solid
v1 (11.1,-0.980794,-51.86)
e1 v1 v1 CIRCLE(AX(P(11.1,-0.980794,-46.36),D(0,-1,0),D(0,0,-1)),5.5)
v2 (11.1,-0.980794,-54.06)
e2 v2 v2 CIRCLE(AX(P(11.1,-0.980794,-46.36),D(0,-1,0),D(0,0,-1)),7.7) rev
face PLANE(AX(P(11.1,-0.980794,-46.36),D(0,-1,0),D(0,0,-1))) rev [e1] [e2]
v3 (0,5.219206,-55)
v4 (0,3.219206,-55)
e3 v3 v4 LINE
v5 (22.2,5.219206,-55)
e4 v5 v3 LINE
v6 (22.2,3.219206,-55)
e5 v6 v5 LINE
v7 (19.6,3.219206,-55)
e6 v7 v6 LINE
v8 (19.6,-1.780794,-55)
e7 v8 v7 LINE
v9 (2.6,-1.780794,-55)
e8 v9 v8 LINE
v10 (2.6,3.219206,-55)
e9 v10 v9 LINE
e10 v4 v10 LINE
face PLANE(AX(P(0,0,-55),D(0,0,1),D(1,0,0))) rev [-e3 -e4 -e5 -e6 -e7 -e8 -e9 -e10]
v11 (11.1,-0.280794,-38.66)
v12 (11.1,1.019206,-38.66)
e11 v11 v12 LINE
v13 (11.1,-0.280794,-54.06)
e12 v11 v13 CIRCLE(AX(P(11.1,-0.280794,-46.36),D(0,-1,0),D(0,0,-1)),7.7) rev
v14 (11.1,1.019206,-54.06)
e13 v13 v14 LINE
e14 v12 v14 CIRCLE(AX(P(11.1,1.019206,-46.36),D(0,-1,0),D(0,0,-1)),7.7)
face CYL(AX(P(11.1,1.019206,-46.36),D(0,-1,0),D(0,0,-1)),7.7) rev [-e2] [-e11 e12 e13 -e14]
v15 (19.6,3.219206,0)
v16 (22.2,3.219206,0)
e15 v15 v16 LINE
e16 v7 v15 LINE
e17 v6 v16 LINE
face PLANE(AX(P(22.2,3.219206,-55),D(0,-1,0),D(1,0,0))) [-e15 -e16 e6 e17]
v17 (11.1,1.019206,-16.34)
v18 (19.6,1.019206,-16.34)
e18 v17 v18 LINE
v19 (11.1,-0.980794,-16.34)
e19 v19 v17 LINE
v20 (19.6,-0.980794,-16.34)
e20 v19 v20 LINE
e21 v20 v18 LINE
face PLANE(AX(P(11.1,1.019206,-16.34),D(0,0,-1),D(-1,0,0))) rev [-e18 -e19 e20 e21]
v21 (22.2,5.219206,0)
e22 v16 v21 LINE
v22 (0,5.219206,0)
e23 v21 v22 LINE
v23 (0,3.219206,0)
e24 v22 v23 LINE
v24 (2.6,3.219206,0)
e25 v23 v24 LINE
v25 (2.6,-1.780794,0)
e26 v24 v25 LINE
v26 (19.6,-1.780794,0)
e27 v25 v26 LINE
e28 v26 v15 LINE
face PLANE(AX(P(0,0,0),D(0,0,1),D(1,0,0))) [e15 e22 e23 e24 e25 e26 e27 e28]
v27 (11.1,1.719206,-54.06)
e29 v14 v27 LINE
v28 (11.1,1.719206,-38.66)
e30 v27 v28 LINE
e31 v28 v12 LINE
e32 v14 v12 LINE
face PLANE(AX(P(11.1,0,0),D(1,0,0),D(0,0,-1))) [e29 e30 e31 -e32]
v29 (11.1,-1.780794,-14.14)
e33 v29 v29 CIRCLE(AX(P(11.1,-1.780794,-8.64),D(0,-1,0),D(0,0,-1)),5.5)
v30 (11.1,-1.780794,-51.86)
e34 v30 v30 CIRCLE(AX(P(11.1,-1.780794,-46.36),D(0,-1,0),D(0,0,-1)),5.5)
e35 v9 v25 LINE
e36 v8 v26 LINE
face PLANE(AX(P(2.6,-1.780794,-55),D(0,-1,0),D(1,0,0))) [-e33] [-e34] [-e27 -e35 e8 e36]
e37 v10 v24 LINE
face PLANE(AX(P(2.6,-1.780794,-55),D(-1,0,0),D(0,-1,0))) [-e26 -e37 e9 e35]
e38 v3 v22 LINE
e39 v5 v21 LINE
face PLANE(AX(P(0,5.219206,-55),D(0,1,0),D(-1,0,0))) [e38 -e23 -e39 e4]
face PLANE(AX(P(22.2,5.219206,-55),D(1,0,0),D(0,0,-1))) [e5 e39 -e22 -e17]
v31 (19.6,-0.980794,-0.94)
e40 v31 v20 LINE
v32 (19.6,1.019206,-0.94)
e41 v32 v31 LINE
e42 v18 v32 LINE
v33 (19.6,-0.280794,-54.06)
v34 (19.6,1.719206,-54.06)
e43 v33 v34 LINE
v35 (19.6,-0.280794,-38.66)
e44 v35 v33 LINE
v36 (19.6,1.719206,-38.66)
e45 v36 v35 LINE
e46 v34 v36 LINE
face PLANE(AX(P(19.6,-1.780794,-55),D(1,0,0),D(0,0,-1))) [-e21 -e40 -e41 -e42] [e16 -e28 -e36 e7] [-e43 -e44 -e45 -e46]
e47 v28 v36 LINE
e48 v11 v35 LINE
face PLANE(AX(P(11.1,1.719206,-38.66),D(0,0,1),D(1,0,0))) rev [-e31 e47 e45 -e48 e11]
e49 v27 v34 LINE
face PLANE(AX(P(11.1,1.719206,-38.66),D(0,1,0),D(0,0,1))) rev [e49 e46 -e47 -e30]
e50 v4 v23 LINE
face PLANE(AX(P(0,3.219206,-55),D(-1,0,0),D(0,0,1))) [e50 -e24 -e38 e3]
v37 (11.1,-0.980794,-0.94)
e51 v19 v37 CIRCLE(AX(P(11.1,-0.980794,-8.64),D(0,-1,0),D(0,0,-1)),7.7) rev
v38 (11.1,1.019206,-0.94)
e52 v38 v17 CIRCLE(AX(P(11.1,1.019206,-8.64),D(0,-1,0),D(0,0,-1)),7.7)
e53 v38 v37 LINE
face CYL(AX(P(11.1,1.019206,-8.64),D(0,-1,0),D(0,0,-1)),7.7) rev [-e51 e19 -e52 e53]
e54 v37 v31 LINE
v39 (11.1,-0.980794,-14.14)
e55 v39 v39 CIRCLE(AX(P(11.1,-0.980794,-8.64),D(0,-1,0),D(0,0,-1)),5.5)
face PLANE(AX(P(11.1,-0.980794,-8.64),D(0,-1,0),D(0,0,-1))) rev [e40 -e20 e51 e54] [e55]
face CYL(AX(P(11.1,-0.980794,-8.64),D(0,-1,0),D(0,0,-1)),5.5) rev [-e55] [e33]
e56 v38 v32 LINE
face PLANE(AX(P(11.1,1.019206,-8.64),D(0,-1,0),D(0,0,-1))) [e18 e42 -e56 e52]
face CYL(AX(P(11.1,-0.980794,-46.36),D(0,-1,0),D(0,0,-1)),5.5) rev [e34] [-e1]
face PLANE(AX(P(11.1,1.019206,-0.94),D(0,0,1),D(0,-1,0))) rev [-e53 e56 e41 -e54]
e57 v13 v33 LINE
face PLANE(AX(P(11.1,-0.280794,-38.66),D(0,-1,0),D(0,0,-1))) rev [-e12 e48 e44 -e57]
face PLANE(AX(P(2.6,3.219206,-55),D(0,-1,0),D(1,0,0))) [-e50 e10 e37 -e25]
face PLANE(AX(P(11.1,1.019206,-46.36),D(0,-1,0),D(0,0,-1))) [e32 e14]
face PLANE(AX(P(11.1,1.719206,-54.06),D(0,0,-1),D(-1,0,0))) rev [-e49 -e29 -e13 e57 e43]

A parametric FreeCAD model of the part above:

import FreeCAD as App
import Part
import Sketcher

V = App.Vector
Q = App.Units.Quantity

doc = App.newDocument("Part")
body = doc.addObject("PartDesign::Body", "Body")

sketch1 = doc.addObject("Sketcher::SketchObject", "Sketch")
body.addObject(sketch1)
sketch1.AttachmentSupport = (doc.XY_Plane, [""])
sketch1.MapMode = "FlatFace"
sketch1.addGeometry(Part.LineSegment(V(2.6, -1.780794, 0), V(19.6, -1.780794, 0)), False)
sketch1.addGeometry(Part.LineSegment(V(19.6, -1.780794, 0), V(19.6, 3.219206, 0)), False)
sketch1.addGeometry(Part.LineSegment(V(19.6, 3.219206, 0), V(22.2, 3.219206, 0)), False)
sketch1.addGeometry(Part.LineSegment(V(22.2, 3.219206, 0), V(22.2, 5.219206, 0)), False)
sketch1.addGeometry(Part.LineSegment(V(22.2, 5.219206, 0), V(0, 5.219206, 0)), False)
sketch1.addGeometry(Part.LineSegment(V(0, 5.219206, 0), V(0, 3.219206, 0)), False)
sketch1.addGeometry(Part.LineSegment(V(0, 3.219206, 0), V(2.6, 3.219206, 0)), False)
sketch1.addGeometry(Part.LineSegment(V(2.6, 3.219206, 0), V(2.6, -1.780794, 0)), False)
sketch1.addConstraint(Sketcher.Constraint("Coincident", 0, 2, 1, 1))
sketch1.addConstraint(Sketcher.Constraint("Coincident", 1, 2, 2, 1))
sketch1.addConstraint(Sketcher.Constraint("Coincident", 2, 2, 3, 1))
sketch1.addConstraint(Sketcher.Constraint("Coincident", 3, 2, 4, 1))
sketch1.addConstraint(Sketcher.Constraint("Coincident", 4, 2, 5, 1))
sketch1.addConstraint(Sketcher.Constraint("Coincident", 5, 2, 6, 1))
sketch1.addConstraint(Sketcher.Constraint("Coincident", 6, 2, 7, 1))
sketch1.addConstraint(Sketcher.Constraint("Coincident", 7, 2, 0, 1))
sketch1.addConstraint(Sketcher.Constraint("Horizontal", 0))
sketch1.addConstraint(Sketcher.Constraint("Vertical", 1))
sketch1.addConstraint(Sketcher.Constraint("Horizontal", 2))
sketch1.addConstraint(Sketcher.Constraint("Vertical", 3))
sketch1.addConstraint(Sketcher.Constraint("Horizontal", 4))
sketch1.addConstraint(Sketcher.Constraint("Vertical", 5))
sketch1.addConstraint(Sketcher.Constraint("Horizontal", 6))
sketch1.addConstraint(Sketcher.Constraint("Vertical", 7))
sketch1.addConstraint(Sketcher.Constraint("PointOnObject", 4, 2, -2))
sketch1.addConstraint(Sketcher.Constraint("Horizontal", 2, 2, 5, 2))
sketch1.addConstraint(Sketcher.Constraint("Equal", 2, 6))
sketch1.addConstraint(Sketcher.Constraint("DistanceX", 0, 1, 0, 2, Q("17 mm")))
sketch1.addConstraint(Sketcher.Constraint("DistanceY", 1, 1, 1, 2, Q("5 mm")))
sketch1.addConstraint(Sketcher.Constraint("DistanceY", 3, 1, 3, 2, Q("2 mm")))
sketch1.addConstraint(Sketcher.Constraint("DistanceX", 2, 1, 2, 2, Q("2.6 mm")))
sketch1.addConstraint(Sketcher.Constraint("DistanceY", 0, 2, -1, 1, Q("1.780794 mm")))
pad1 = doc.addObject("PartDesign::Pad", "Pad")
body.addObject(pad1)
pad1.Profile = sketch1
pad1.Length = 55
pad1.Reversed = True

sketch2 = doc.addObject("Sketcher::SketchObject", "Sketch001")
body.addObject(sketch2)
sketch2.AttachmentSupport = (doc.XZ_Plane, [""])
sketch2.MapMode = "FlatFace"
sketch2.AttachmentOffset = App.Placement(V(0, 0, 1.780794), App.Rotation())
sketch2.addGeometry(Part.Circle(V(11.1, -8.64, 0), V(0, 0, 1), 7.7), False)
sketch2.addGeometry(Part.Circle(V(11.1, -46.36, 0), V(0, 0, 1), 7.7), False)
sketch2.addConstraint(Sketcher.Constraint("Equal", 0, 1))
sketch2.addConstraint(Sketcher.Constraint("Vertical", 0, 3, 1, 3))
sketch2.addConstraint(Sketcher.Constraint("Diameter", 0, Q("15.4 mm")))
sketch2.addConstraint(Sketcher.Constraint("DistanceX", -1, 1, 0, 3, Q("11.1 mm")))
sketch2.addConstraint(Sketcher.Constraint("DistanceY", 0, 3, -1, 1, Q("8.64 mm")))
sketch2.addConstraint(Sketcher.Constraint("DistanceY", 1, 3, -1, 1, Q("46.36 mm")))
pocket1 = doc.addObject("PartDesign::Pocket", "Pocket")
body.addObject(pocket1)
pocket1.Profile = sketch2
pocket1.Length = 2.8

sketch3 = doc.addObject("Sketcher::SketchObject", "Sketch002")
body.addObject(sketch3)
sketch3.AttachmentSupport = (doc.XZ_Plane, [""])
sketch3.MapMode = "FlatFace"
sketch3.AttachmentOffset = App.Placement(V(0, 0, 1.780794), App.Rotation())
sketch3.addGeometry(Part.Circle(V(11.1, -8.64, 0), V(0, 0, 1), 7.7), False)
sketch3.addGeometry(Part.Circle(V(11.1, -8.64, 0), V(0, 0, 1), 5.5), False)
sketch3.addGeometry(Part.Circle(V(11.1, -46.36, 0), V(0, 0, 1), 7.7), False)
sketch3.addGeometry(Part.Circle(V(11.1, -46.36, 0), V(0, 0, 1), 5.5), False)
sketch3.addConstraint(Sketcher.Constraint("Coincident", 1, 3, 0, 3))
sketch3.addConstraint(Sketcher.Constraint("Coincident", 3, 3, 2, 3))
sketch3.addConstraint(Sketcher.Constraint("Equal", 0, 2))
sketch3.addConstraint(Sketcher.Constraint("Equal", 1, 3))
sketch3.addConstraint(Sketcher.Constraint("Vertical", 1, 3, 2, 3))
sketch3.addConstraint(Sketcher.Constraint("Diameter", 1, Q("11 mm")))
sketch3.addConstraint(Sketcher.Constraint("Diameter", 0, Q("15.4 mm")))
sketch3.addConstraint(Sketcher.Constraint("DistanceX", -1, 1, 0, 3, Q("11.1 mm")))
sketch3.addConstraint(Sketcher.Constraint("DistanceY", 0, 3, -1, 1, Q("8.64 mm")))
sketch3.addConstraint(Sketcher.Constraint("DistanceY", 2, 3, -1, 1, Q("46.36 mm")))
pad2 = doc.addObject("PartDesign::Pad", "Pad001")
body.addObject(pad2)
pad2.Profile = sketch3
pad2.Length = 0.8
pad2.Reversed = True

sketch4 = doc.addObject("Sketcher::SketchObject", "Sketch003")
body.addObject(sketch4)
sketch4.AttachmentSupport = (doc.YZ_Plane, [""])
sketch4.MapMode = "FlatFace"
sketch4.AttachmentOffset = App.Placement(V(0, 0, 19.6), App.Rotation())
sketch4.addGeometry(Part.LineSegment(V(1.019206, -0.94, 0), V(-0.980794, -0.94, 0)), False)
sketch4.addGeometry(Part.LineSegment(V(-0.980794, -0.94, 0), V(-0.980794, -16.34, 0)), False)
sketch4.addGeometry(Part.LineSegment(V(-0.980794, -16.34, 0), V(1.019206, -16.34, 0)), False)
sketch4.addGeometry(Part.LineSegment(V(1.019206, -16.34, 0), V(1.019206, -0.94, 0)), False)
sketch4.addGeometry(Part.LineSegment(V(1.719206, -38.66, 0), V(-0.280794, -38.66, 0)), False)
sketch4.addGeometry(Part.LineSegment(V(-0.280794, -38.66, 0), V(-0.280794, -54.06, 0)), False)
sketch4.addGeometry(Part.LineSegment(V(-0.280794, -54.06, 0), V(1.719206, -54.06, 0)), False)
sketch4.addGeometry(Part.LineSegment(V(1.719206, -54.06, 0), V(1.719206, -38.66, 0)), False)
sketch4.addConstraint(Sketcher.Constraint("Coincident", 0, 2, 1, 1))
sketch4.addConstraint(Sketcher.Constraint("Coincident", 1, 2, 2, 1))
sketch4.addConstraint(Sketcher.Constraint("Coincident", 2, 2, 3, 1))
sketch4.addConstraint(Sketcher.Constraint("Coincident", 3, 2, 0, 1))
sketch4.addConstraint(Sketcher.Constraint("Coincident", 4, 2, 5, 1))
sketch4.addConstraint(Sketcher.Constraint("Coincident", 5, 2, 6, 1))
sketch4.addConstraint(Sketcher.Constraint("Coincident", 6, 2, 7, 1))
sketch4.addConstraint(Sketcher.Constraint("Coincident", 7, 2, 4, 1))
sketch4.addConstraint(Sketcher.Constraint("Horizontal", 0))
sketch4.addConstraint(Sketcher.Constraint("Vertical", 1))
sketch4.addConstraint(Sketcher.Constraint("Horizontal", 2))
sketch4.addConstraint(Sketcher.Constraint("Vertical", 3))
sketch4.addConstraint(Sketcher.Constraint("Horizontal", 4))
sketch4.addConstraint(Sketcher.Constraint("Vertical", 5))
sketch4.addConstraint(Sketcher.Constraint("Horizontal", 6))
sketch4.addConstraint(Sketcher.Constraint("Vertical", 7))
sketch4.addConstraint(Sketcher.Constraint("Equal", 2, 4))
sketch4.addConstraint(Sketcher.Constraint("Equal", 3, 5))
sketch4.addConstraint(Sketcher.Constraint("DistanceX", 0, 2, 0, 1, Q("2 mm")))
sketch4.addConstraint(Sketcher.Constraint("DistanceY", 1, 2, 1, 1, Q("15.4 mm")))
sketch4.addConstraint(Sketcher.Constraint("DistanceX", 1, 2, 4, 2, Q("0.7 mm")))
sketch4.addConstraint(Sketcher.Constraint("DistanceY", 0, 2, -1, 1, Q("0.94 mm")))
sketch4.addConstraint(Sketcher.Constraint("DistanceY", 4, 2, -1, 1, Q("38.66 mm")))
sketch4.addConstraint(Sketcher.Constraint("DistanceX", 0, 2, -1, 1, Q("0.980794 mm")))
pocket2 = doc.addObject("PartDesign::Pocket", "Pocket001")
body.addObject(pocket2)
pocket2.Profile = sketch4
pocket2.Length = 8.5

doc.recompute()
